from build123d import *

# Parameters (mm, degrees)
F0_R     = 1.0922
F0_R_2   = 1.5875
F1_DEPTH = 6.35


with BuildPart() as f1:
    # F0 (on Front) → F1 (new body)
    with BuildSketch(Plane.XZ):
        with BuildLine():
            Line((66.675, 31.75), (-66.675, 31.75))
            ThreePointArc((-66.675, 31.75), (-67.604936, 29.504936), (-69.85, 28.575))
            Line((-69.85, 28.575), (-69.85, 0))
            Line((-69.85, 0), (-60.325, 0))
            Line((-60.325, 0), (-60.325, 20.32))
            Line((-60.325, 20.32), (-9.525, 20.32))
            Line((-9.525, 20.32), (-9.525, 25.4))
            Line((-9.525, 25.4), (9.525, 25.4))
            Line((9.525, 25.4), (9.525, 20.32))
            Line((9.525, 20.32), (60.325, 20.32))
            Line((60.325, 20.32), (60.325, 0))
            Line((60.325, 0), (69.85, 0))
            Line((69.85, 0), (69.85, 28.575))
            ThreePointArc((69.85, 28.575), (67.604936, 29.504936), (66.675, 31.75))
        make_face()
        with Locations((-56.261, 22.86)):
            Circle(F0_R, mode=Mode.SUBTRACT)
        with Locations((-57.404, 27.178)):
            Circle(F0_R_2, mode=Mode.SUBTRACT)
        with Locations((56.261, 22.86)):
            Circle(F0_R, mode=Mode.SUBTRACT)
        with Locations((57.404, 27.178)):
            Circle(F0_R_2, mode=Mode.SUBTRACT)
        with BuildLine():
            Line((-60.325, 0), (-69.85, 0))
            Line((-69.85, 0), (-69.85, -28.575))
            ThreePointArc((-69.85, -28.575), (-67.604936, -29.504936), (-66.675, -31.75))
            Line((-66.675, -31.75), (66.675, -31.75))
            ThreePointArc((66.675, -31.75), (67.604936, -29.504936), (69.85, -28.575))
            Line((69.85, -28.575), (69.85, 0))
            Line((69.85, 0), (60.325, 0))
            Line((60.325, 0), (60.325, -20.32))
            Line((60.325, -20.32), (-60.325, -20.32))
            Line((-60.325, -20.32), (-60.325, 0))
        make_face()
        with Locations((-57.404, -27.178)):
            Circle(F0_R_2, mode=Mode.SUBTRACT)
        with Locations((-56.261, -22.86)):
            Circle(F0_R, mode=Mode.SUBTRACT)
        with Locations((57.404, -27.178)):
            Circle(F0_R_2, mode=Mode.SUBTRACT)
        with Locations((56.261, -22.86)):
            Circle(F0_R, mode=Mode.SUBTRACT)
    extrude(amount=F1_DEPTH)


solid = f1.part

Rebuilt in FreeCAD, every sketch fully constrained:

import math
import FreeCAD as App
import Part
import Sketcher

V = App.Vector
Q = App.Units.Quantity


def add_polygon(sketch, points):
    """Adds a closed chain of lines whose ends are joined by coincident constraints."""
    first, n = sketch.GeometryCount, len(points)
    for a, b in zip(points, points[1:] + points[:1]):
        sketch.addGeometry(Part.LineSegment(App.Vector(*a, 0), App.Vector(*b, 0)), False)
    for i in range(n):
        sketch.addConstraint(Sketcher.Constraint("Coincident", first + i, 2, first + (i + 1) % n, 1))

doc = App.newDocument("Part")
body = doc.addObject("PartDesign::Body", "Body")

sketch1 = body.newObject("Sketcher::SketchObject", "Sketch")
sketch1.AttachmentSupport = (doc.getObject("XZ_Plane"), [""])
sketch1.MapMode = "FlatFace"
sketch1.addGeometry(Part.LineSegment(V(66.7, 31.8, 0), V(-66.7, 31.8, 0)), False)
sketch1.addGeometry(Part.ArcOfCircle(Part.Circle(V(-69.9, 31.8, 0), V(0, 0, 1), 3.2), math.radians(-90), math.radians(0)), False)
sketch1.addGeometry(Part.LineSegment(V(-69.8, 28.6, 0), V(-69.8, -28.6, 0)), False)
sketch1.addGeometry(Part.ArcOfCircle(Part.Circle(V(-69.9, -31.8, 0), V(0, 0, 1), 3.2), math.radians(0), math.radians(90)), False)
sketch1.addGeometry(Part.LineSegment(V(-66.7, -31.8, 0), V(66.7, -31.8, 0)), False)
sketch1.addGeometry(Part.ArcOfCircle(Part.Circle(V(69.9, -31.8, 0), V(0, 0, 1), 3.2), math.radians(90), math.radians(180)), False)
sketch1.addGeometry(Part.LineSegment(V(69.8, -28.6, 0), V(69.8, 28.6, 0)), False)
sketch1.addGeometry(Part.ArcOfCircle(Part.Circle(V(69.9, 31.8, 0), V(0, 0, 1), 3.2), math.radians(-180), math.radians(-90)), False)
sketch1.addGeometry(Part.Circle(V(-57.4, -27.2, 0), V(0, 0, 1), 1.6), False)
sketch1.addGeometry(Part.Circle(V(-56.3, -22.9, 0), V(0, 0, 1), 1.1), False)
sketch1.addGeometry(Part.Circle(V(57.4, -27.2, 0), V(0, 0, 1), 1.6), False)
sketch1.addGeometry(Part.Circle(V(56.3, -22.9, 0), V(0, 0, 1), 1.1), False)
sketch1.addGeometry(Part.Circle(V(-56.3, 22.9, 0), V(0, 0, 1), 1.1), False)
sketch1.addGeometry(Part.Circle(V(-57.4, 27.2, 0), V(0, 0, 1), 1.6), False)
add_polygon(sketch1, [(60.3, 20.3), (60.3, -20.3), (-60.3, -20.3), (-60.3, 20.3), (-9.5, 20.3), (-9.5, 25.4), (9.5, 25.4), (9.5, 20.3)])
sketch1.addGeometry(Part.Circle(V(56.3, 22.9, 0), V(0, 0, 1), 1.1), False)
sketch1.addGeometry(Part.Circle(V(57.4, 27.2, 0), V(0, 0, 1), 1.6), False)
sketch1.addConstraint([
    Sketcher.Constraint("Coincident", 0, 2, 1, 2),
    Sketcher.Constraint("Coincident", 1, 1, 2, 1),
    Sketcher.Constraint("Coincident", 2, 2, 3, 2),
    Sketcher.Constraint("Coincident", 3, 1, 4, 1),
    Sketcher.Constraint("Coincident", 4, 2, 5, 2),
    Sketcher.Constraint("Coincident", 5, 1, 6, 1),
    Sketcher.Constraint("Coincident", 6, 2, 7, 2),
    Sketcher.Constraint("Coincident", 7, 1, 0, 1),
    Sketcher.Constraint("Horizontal", 0),
    Sketcher.Constraint("Vertical", 2),
    Sketcher.Constraint("Horizontal", 4),
    Sketcher.Constraint("Vertical", 6),
    Sketcher.Constraint("Vertical", 14),
    Sketcher.Constraint("Horizontal", 15),
    Sketcher.Constraint("Vertical", 16),
    Sketcher.Constraint("Horizontal", 17),
    Sketcher.Constraint("Vertical", 18),
    Sketcher.Constraint("Horizontal", 19),
    Sketcher.Constraint("Vertical", 20),
    Sketcher.Constraint("Horizontal", 21),
    Sketcher.Constraint("Equal", 1, 3),
    Sketcher.Constraint("Equal", 3, 5),
    Sketcher.Constraint("Equal", 5, 7),
    Sketcher.Constraint("Equal", 8, 10),
    Sketcher.Constraint("Equal", 9, 11),
    Sketcher.Constraint("Equal", 11, 12),
    Sketcher.Constraint("Equal", 10, 13),
    Sketcher.Constraint("Equal", 12, 22),
    Sketcher.Constraint("Equal", 13, 23),
    Sketcher.Constraint("Symmetric", 1, 3, 5, 3, -1, 1),
    Sketcher.Constraint("Symmetric", 3, 3, 7, 3, -1, 1),
    Sketcher.Constraint("Symmetric", 11, 3, 12, 3, -1, 1),
    Sketcher.Constraint("Symmetric", 10, 3, 13, 3, -1, 1),
    Sketcher.Constraint("Symmetric", 9, 3, 22, 3, -1, 1),
    Sketcher.Constraint("Symmetric", 8, 3, 23, 3, -1, 1),
    Sketcher.Constraint("Symmetric", 14, 2, 16, 2, -1, 1),
    Sketcher.Constraint("Symmetric", 3, 3, 5, 3, -2),
    Sketcher.Constraint("Symmetric", 8, 3, 10, 3, -2),
    Sketcher.Constraint("Symmetric", 9, 3, 11, 3, -2),
    Sketcher.Constraint("Symmetric", 17, 2, 20, 2, -2),
    Sketcher.Constraint("Horizontal", 7, 3, 0, 2),
    Sketcher.Constraint("Horizontal", 5, 3, 3, 1),
    Sketcher.Constraint("Vertical", 3, 3, 1, 1),
    Sketcher.Constraint("Vertical", 7, 3, 5, 1),
    Sketcher.Constraint("DistanceX", 17, 1, 17, 2, Q("2 in")),
    Sketcher.Constraint("Diameter", 8, Q("0.125 in")),
    Sketcher.Constraint("Diameter", 9, Q("0.086 in")),
    Sketcher.Constraint("DistanceY", 14, 2, 14, 1, Q("1.6 in")),
    Sketcher.Constraint("DistanceY", 18, 1, 18, 2, Q("0.2 in")),
    Sketcher.Constraint("Radius", 1, Q("0.125 in")),
    Sketcher.Constraint("DistanceX", 0, 2, 0, 1, Q("5.25 in")),
    Sketcher.Constraint("DistanceX", 15, 2, 15, 1, Q("4.75 in")),
    Sketcher.Constraint("DistanceY", 2, 2, 2, 1, Q("2.25 in")),
    Sketcher.Constraint("DistanceY", 9, 3, -1, 1, Q("0.9 in")),
    Sketcher.Constraint("DistanceX", 8, 3, -1, 1, Q("2.26 in")),
    Sketcher.Constraint("DistanceY", 8, 3, -1, 1, Q("1.07 in")),
    Sketcher.Constraint("DistanceX", 9, 3, 11, 3, Q("4.43 in")),
])
pad1 = body.newObject("PartDesign::Pad", "Pad")
pad1.Profile = sketch1
pad1.Length = Q("0.25 in")

doc.recompute()
